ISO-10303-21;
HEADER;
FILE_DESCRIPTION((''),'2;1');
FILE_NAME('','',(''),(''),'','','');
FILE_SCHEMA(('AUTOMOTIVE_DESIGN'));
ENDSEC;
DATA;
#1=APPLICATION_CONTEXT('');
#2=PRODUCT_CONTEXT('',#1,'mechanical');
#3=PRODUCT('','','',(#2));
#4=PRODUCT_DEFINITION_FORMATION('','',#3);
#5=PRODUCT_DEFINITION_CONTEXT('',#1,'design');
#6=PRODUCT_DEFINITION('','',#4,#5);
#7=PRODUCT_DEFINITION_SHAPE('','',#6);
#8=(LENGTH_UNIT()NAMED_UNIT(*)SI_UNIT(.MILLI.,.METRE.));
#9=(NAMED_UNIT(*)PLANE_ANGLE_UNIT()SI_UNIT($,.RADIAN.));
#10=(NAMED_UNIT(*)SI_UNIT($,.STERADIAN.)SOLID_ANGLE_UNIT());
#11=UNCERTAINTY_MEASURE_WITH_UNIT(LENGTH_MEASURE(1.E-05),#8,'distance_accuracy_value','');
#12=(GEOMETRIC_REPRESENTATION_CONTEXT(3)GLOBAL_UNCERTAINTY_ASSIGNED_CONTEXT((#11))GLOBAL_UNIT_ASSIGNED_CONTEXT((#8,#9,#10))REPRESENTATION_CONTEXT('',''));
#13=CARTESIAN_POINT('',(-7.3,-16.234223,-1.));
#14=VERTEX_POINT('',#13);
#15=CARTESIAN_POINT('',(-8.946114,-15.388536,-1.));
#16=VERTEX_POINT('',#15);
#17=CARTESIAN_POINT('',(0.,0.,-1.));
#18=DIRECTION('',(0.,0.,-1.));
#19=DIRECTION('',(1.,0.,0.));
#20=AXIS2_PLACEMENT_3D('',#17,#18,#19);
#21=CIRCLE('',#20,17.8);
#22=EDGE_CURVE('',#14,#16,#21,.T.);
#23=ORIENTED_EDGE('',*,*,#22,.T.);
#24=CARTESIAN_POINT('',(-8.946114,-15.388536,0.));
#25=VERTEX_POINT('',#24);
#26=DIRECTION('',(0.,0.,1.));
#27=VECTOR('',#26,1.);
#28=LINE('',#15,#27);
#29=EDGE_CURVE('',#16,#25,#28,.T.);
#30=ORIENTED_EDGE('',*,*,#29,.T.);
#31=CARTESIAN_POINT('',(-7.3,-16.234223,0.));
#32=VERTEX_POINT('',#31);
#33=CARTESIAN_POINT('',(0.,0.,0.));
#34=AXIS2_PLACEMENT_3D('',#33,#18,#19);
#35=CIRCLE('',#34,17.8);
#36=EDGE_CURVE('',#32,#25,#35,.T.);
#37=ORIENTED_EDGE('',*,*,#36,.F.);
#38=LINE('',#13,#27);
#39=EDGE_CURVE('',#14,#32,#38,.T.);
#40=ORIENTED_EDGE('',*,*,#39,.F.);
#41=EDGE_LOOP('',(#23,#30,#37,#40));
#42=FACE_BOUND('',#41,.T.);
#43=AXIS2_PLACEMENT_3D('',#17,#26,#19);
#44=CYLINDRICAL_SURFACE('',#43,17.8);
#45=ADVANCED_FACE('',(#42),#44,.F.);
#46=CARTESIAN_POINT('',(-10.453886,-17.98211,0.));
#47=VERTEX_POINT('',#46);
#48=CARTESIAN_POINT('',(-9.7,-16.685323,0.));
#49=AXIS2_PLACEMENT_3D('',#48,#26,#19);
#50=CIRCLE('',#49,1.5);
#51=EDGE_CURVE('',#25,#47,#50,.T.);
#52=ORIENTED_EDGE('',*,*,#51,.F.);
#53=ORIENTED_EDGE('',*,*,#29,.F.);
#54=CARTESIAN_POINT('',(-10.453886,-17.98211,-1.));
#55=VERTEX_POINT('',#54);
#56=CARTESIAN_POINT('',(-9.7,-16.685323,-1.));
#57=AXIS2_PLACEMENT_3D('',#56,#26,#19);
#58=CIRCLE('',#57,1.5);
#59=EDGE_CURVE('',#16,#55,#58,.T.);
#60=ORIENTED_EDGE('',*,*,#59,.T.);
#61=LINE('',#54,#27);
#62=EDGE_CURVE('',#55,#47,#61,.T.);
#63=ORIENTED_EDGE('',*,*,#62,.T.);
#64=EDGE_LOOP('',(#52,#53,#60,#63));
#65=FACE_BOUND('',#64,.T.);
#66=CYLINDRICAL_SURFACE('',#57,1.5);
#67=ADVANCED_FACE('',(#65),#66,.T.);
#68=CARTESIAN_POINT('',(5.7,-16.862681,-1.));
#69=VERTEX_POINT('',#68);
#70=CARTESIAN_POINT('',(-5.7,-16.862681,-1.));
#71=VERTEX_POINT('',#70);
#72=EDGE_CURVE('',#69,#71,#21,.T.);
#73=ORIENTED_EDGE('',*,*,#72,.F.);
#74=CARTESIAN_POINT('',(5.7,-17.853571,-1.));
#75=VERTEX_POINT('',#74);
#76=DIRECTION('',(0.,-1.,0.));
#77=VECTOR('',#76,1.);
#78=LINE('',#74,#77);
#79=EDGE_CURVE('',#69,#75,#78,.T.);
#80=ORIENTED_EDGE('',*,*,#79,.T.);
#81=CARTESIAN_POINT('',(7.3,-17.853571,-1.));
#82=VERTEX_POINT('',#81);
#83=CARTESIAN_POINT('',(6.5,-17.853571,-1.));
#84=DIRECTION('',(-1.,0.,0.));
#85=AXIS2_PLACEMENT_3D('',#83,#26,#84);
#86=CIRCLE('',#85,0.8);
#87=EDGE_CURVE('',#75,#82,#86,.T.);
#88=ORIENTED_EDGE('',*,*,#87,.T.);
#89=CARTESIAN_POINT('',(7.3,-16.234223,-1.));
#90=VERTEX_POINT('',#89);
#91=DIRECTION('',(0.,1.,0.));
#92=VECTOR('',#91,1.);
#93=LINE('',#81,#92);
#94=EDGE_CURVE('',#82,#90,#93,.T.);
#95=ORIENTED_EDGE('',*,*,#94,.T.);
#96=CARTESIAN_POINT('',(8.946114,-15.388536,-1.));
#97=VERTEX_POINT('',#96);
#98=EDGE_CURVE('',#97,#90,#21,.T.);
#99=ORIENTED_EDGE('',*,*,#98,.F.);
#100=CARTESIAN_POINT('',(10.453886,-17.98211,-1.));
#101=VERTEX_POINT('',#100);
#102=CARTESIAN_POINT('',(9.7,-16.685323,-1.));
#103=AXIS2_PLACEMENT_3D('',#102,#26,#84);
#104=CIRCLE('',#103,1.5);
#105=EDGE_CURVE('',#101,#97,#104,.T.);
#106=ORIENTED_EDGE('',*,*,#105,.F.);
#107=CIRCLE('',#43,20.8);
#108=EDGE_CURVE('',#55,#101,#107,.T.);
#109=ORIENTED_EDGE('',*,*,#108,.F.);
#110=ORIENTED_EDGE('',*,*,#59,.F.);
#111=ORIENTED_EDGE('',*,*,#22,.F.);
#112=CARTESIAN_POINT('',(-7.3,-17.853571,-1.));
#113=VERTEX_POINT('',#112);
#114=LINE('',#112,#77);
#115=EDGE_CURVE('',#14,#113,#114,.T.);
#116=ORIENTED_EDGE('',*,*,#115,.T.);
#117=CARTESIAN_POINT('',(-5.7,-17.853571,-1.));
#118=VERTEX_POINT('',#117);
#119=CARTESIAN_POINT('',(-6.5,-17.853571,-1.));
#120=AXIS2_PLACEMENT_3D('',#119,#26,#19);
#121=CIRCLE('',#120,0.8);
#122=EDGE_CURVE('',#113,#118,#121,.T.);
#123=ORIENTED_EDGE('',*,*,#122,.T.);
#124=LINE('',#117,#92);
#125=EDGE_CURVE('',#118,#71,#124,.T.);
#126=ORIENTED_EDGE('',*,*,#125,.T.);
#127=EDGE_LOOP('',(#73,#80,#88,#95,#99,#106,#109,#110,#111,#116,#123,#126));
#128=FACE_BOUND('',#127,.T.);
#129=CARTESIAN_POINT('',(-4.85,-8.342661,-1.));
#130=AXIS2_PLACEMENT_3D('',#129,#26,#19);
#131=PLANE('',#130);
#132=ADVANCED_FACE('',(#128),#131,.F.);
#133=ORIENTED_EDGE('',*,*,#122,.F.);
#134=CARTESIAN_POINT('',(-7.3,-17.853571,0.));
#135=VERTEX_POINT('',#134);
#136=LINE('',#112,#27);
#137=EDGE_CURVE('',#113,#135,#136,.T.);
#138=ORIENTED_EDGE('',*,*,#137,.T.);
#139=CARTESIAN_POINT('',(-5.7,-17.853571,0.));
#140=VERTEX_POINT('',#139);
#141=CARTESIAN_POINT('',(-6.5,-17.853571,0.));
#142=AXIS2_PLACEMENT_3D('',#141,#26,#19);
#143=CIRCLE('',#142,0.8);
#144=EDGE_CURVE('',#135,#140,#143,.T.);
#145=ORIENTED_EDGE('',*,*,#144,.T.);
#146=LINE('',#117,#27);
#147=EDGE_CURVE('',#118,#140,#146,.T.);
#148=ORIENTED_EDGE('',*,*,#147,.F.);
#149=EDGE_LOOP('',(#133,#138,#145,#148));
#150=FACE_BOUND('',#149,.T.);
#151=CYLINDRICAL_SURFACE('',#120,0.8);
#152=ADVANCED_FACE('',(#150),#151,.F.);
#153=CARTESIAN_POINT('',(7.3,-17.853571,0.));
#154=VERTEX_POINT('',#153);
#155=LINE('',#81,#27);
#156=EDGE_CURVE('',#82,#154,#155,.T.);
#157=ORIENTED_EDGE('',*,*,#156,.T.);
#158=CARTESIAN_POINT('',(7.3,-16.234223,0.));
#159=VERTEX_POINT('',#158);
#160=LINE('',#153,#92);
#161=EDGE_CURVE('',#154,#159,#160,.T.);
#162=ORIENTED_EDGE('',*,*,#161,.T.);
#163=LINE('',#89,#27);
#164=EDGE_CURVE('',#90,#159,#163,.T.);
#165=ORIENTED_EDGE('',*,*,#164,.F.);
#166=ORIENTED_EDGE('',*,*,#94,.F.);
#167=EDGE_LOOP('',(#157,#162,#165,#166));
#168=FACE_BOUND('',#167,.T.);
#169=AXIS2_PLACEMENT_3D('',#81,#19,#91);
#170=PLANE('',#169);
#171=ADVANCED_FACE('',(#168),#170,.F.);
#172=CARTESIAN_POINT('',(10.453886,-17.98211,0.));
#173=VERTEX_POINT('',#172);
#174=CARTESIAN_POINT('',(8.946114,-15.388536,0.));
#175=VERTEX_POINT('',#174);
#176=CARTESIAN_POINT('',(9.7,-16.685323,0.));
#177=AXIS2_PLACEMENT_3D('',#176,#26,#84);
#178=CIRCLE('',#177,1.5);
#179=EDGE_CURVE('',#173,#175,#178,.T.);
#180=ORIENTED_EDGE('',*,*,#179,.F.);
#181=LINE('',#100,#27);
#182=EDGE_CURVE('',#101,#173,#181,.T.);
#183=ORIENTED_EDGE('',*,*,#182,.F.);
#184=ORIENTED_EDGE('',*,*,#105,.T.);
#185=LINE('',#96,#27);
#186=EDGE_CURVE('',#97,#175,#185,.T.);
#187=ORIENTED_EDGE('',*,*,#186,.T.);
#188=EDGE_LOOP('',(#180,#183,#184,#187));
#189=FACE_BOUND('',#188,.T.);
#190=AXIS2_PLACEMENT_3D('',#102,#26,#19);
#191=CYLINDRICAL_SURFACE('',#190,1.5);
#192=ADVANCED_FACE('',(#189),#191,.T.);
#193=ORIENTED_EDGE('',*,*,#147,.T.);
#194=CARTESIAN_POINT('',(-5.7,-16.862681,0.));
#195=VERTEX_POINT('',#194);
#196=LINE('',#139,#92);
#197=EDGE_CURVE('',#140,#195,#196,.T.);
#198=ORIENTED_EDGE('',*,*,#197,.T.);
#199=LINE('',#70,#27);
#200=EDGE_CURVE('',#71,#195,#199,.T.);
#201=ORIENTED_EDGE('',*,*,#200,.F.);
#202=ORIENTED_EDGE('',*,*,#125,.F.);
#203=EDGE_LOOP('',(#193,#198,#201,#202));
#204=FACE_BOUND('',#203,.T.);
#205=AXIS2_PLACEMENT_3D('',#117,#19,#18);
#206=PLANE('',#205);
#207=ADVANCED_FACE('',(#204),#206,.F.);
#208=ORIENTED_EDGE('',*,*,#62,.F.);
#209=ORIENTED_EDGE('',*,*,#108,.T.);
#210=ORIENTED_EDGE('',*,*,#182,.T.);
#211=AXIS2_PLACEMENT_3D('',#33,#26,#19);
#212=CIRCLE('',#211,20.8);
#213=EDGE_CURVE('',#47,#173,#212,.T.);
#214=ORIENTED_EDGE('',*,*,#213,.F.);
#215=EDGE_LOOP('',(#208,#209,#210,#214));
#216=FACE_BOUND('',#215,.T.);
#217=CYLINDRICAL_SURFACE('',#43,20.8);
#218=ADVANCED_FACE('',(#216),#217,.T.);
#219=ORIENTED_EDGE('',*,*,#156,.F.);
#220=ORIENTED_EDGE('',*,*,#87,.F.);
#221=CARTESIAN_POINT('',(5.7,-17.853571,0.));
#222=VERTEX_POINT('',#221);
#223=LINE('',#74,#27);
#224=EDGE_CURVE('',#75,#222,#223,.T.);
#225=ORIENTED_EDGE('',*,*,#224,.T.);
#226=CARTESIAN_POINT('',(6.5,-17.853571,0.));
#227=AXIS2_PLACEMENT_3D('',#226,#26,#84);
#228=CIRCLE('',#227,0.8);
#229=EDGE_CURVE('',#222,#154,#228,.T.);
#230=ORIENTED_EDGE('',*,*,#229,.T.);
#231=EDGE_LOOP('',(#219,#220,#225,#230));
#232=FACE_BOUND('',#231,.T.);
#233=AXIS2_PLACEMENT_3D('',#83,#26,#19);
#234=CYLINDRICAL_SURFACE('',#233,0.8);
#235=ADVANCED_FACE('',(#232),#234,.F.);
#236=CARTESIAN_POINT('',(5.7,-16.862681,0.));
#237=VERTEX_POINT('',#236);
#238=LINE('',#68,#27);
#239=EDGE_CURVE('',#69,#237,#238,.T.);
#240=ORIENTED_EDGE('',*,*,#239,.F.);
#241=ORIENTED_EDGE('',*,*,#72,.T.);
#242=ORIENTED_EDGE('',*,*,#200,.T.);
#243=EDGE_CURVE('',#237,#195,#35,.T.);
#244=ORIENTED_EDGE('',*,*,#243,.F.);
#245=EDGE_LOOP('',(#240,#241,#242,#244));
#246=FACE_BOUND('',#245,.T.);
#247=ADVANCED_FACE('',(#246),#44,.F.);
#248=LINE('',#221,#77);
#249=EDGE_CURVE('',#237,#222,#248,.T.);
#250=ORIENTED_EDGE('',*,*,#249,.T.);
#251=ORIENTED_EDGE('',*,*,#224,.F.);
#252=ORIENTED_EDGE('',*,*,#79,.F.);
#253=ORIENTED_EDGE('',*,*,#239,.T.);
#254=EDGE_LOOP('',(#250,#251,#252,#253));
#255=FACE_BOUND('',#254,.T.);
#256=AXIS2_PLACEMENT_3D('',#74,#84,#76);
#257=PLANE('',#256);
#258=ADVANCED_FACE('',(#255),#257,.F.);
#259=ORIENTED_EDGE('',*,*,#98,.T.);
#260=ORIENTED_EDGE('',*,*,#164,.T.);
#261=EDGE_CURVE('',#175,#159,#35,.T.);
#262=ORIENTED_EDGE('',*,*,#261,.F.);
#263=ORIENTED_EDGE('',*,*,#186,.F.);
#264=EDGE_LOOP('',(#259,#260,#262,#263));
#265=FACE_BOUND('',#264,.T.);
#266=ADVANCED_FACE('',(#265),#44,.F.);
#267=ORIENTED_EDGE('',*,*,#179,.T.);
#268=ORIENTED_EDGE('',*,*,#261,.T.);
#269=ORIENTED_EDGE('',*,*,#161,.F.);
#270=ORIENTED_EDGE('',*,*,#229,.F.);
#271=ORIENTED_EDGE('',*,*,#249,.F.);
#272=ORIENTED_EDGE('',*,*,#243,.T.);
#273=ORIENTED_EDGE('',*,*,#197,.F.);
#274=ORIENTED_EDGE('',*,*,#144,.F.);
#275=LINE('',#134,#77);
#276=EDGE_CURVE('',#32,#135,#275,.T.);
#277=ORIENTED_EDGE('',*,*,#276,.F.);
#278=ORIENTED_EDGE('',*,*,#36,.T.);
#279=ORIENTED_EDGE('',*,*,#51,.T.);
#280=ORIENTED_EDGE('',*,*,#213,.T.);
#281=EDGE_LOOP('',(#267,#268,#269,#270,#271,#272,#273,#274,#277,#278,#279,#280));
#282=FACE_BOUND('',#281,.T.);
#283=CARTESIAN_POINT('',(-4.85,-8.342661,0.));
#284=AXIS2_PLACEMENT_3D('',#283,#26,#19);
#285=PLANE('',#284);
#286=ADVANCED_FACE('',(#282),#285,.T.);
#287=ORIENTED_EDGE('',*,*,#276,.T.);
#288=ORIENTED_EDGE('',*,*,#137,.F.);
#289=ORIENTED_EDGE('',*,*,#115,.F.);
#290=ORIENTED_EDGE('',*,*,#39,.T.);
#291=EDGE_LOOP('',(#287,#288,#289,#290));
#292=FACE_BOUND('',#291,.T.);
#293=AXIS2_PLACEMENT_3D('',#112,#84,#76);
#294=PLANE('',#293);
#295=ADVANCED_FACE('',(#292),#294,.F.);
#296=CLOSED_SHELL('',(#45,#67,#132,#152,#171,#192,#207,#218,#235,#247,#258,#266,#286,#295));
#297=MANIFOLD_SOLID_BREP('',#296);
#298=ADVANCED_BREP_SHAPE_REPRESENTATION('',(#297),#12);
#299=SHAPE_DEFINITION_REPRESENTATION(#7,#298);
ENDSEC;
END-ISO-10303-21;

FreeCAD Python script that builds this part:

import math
import FreeCAD as App
import Part
import Sketcher

V = App.Vector

doc = App.newDocument("Part")
body = doc.addObject("PartDesign::Body", "Body")

sketch1 = doc.addObject("Sketcher::SketchObject", "Sketch")
body.addObject(sketch1)
sketch1.AttachmentSupport = (doc.XY_Plane, [""])
sketch1.MapMode = "FlatFace"
sketch1.addGeometry([
    Part.ArcOfCircle(Part.Circle(V(0, 0, 0), V(0, 0, 1), 20.8), math.radians(-120), math.radians(-60)),
    Part.ArcOfCircle(Part.Circle(V(9.7, -16.7, 0), V(0, 0, 1), 1.5), math.radians(-60), math.radians(120)),
    Part.ArcOfCircle(Part.Circle(V(0, 0, 0), V(0, 0, 1), 17.8), math.radians(-120), math.radians(-60)),
    Part.ArcOfCircle(Part.Circle(V(-9.7, -16.7, 0), V(0, 0, 1), 1.5), math.radians(60), math.radians(240)),
], False)
sketch1.addConstraint([
    Sketcher.Constraint("Tangent", 0, 2, 1, 1),
    Sketcher.Constraint("Tangent", 1, 2, 2, 2),
    Sketcher.Constraint("Tangent", 2, 1, 3, 1),
    Sketcher.Constraint("Tangent", 3, 2, 0, 1),
    Sketcher.Constraint("Coincident", 0, 3, -1, 1),
    Sketcher.Constraint("Coincident", 2, 3, -1, 1),
    Sketcher.Constraint("Horizontal", 1, 3, 3, 3),
    Sketcher.Constraint("Radius", 0, 20.8),
    Sketcher.Constraint("Radius", 1, 1.5),
    Sketcher.Constraint("DistanceX", -1, 1, 1, 3, 9.7),
])
pad1 = doc.addObject("PartDesign::Pad", "Pad")
body.addObject(pad1)
pad1.Profile = sketch1
pad1.Length = 1
pad1.Reversed = True

sketch2 = doc.addObject("Sketcher::SketchObject", "Sketch001")
body.addObject(sketch2)
sketch2.AttachmentSupport = (doc.XY_Plane, [""])
sketch2.MapMode = "FlatFace"
sketch2.addGeometry([
    Part.LineSegment(V(-7.3, -16.2, 0), V(-7.3, -17.9, 0)),
    Part.ArcOfCircle(Part.Circle(V(-6.5, -17.9, 0), V(0, 0, 1), 0.8), math.radians(180), math.radians(360)),
    Part.LineSegment(V(-5.7, -17.9, 0), V(-5.7, -16.9, 0)),
    Part.ArcOfCircle(Part.Circle(V(0, 0, 0), V(0, 0, 1), 17.8), math.radians(-114.21), math.radians(-108.68)),
    Part.LineSegment(V(5.7, -16.9, 0), V(5.7, -17.9, 0)),
    Part.ArcOfCircle(Part.Circle(V(6.5, -17.9, 0), V(0, 0, 1), 0.8), math.radians(180), math.radians(360)),
    Part.LineSegment(V(7.3, -17.9, 0), V(7.3, -16.2, 0)),
    Part.ArcOfCircle(Part.Circle(V(0, 0, 0), V(0, 0, 1), 17.8), math.radians(-71.32), math.radians(-65.79)),
], False)
sketch2.addConstraint([
    Sketcher.Constraint("Tangent", 0, 2, 1, 1),
    Sketcher.Constraint("Tangent", 1, 2, 2, 1),
    Sketcher.Constraint("Coincident", 2, 2, 3, 2),
    Sketcher.Constraint("Coincident", 3, 1, 0, 1),
    Sketcher.Constraint("Tangent", 4, 2, 5, 1),
    Sketcher.Constraint("Tangent", 5, 2, 6, 1),
    Sketcher.Constraint("Coincident", 6, 2, 7, 2),
    Sketcher.Constraint("Coincident", 7, 1, 4, 1),
    Sketcher.Constraint("Vertical", 0),
    Sketcher.Constraint("Vertical", 2),
    Sketcher.Constraint("Vertical", 4),
    Sketcher.Constraint("Vertical", 6),
    Sketcher.Constraint("Coincident", 3, 3, -1, 1),
    Sketcher.Constraint("Coincident", 7, 3, -1, 1),
    Sketcher.Constraint("Equal", 1, 5),
    Sketcher.Constraint("Equal", 3, 7),
    Sketcher.Constraint("Symmetric", 1, 3, 5, 3, -2),
    Sketcher.Constraint("Radius", 1, 0.8),
    Sketcher.Constraint("Radius", 3, 17.799999),
    Sketcher.Constraint("DistanceX", 1, 3, 5, 3, 13.0),
    Sketcher.Constraint("DistanceY", 2, 1, 2, 2, 0.99089),
])
pocket1 = doc.addObject("PartDesign::Pocket", "Pocket")
body.addObject(pocket1)
pocket1.Profile = sketch2
pocket1.Type = "ThroughAll"

doc.recompute()
